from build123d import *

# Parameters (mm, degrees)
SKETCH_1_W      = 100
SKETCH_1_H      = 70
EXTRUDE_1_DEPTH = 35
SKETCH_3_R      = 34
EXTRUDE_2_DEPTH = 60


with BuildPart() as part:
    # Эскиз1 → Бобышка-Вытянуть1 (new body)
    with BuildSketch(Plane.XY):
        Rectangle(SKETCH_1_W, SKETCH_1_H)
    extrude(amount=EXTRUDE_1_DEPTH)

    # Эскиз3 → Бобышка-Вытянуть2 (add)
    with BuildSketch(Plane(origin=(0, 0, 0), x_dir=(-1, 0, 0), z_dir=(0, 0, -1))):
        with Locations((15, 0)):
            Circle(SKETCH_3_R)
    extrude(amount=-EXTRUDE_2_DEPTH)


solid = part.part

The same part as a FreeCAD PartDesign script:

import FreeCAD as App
import Part
import Sketcher

V = App.Vector


def add_polygon(sketch, points):
    """Adds a closed chain of lines whose ends are joined by coincident constraints."""
    first, n = sketch.GeometryCount, len(points)
    for a, b in zip(points, points[1:] + points[:1]):
        sketch.addGeometry(Part.LineSegment(App.Vector(*a, 0), App.Vector(*b, 0)), False)
    for i in range(n):
        sketch.addConstraint(Sketcher.Constraint("Coincident", first + i, 2, first + (i + 1) % n, 1))

doc = App.newDocument("Part")
body = doc.addObject("PartDesign::Body", "Body")

# Sketch on XY plane
sketch1 = body.newObject("Sketcher::SketchObject", "Sketch")
sketch1.AttachmentSupport = (doc.getObject("XY_Plane"), [""])
sketch1.MapMode = "FlatFace"
add_polygon(sketch1, [(-50, 35), (-50, -35), (50, -35), (50, 35)])  # lines 0-3
sketch1.addConstraint(Sketcher.Constraint("Vertical", 0))
sketch1.addConstraint(Sketcher.Constraint("Horizontal", 1))
sketch1.addConstraint(Sketcher.Constraint("Vertical", 2))
sketch1.addConstraint(Sketcher.Constraint("Horizontal", 3))
sketch1.addConstraint(Sketcher.Constraint("Symmetric", 0, 2, 2, 2, -1, 1))
sketch1.addConstraint(Sketcher.Constraint("DistanceX", 1, 1, 1, 2, 100.0))
sketch1.addConstraint(Sketcher.Constraint("DistanceY", 0, 2, 0, 1, 70.0))
pad1 = body.newObject("PartDesign::Pad", "Pad")
pad1.Profile = sketch1
pad1.Length = 35

# Sketch on XY plane
sketch2 = body.newObject("Sketcher::SketchObject", "Sketch001")
sketch2.AttachmentSupport = (doc.getObject("XY_Plane"), [""])
sketch2.MapMode = "FlatFace"
sketch2.addGeometry(Part.Circle(V(-15, 0, 0), V(0, 0, 1), 34), False)
sketch2.addConstraint(Sketcher.Constraint("PointOnObject", 0, 3, -1))
sketch2.addConstraint(Sketcher.Constraint("Diameter", 0, 68.0))
sketch2.addConstraint(Sketcher.Constraint("DistanceX", 0, 3, -1, 1, 15.0))
pad2 = body.newObject("PartDesign::Pad", "Pad001")
pad2.Profile = sketch2
pad2.Length = 60

doc.recompute()
